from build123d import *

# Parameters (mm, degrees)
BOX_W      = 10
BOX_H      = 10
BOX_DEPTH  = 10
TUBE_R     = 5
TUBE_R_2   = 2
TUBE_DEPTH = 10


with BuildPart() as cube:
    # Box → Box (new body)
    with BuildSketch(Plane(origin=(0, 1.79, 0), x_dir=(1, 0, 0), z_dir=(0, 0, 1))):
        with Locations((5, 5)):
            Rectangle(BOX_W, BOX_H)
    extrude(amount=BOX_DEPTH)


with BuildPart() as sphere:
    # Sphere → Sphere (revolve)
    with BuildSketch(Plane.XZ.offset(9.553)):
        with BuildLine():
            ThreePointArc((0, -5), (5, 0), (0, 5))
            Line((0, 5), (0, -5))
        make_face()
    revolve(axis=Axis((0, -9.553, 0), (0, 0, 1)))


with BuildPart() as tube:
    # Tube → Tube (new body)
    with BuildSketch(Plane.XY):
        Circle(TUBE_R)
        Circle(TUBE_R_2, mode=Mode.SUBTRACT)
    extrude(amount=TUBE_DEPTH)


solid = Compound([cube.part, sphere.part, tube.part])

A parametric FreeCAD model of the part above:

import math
import FreeCAD as App
import Part
import Sketcher

V = App.Vector


def add_polygon(sketch, points):
    """Adds a closed chain of lines whose ends are joined by coincident constraints."""
    first, n = sketch.GeometryCount, len(points)
    for a, b in zip(points, points[1:] + points[:1]):
        sketch.addGeometry(Part.LineSegment(App.Vector(*a, 0), App.Vector(*b, 0)), False)
    for i in range(n):
        sketch.addConstraint(Sketcher.Constraint("Coincident", first + i, 2, first + (i + 1) % n, 1))

doc = App.newDocument("Part")
params = doc.addObject("Spreadsheet::Sheet", "Params")
for row, (alias, value) in enumerate([
    ("sketch1_width", "10 mm"),
    ("pad1_length", "10 mm"),
    ("sketch2_radius", "5 mm"),
    ("revolution_angle", "360 deg"),
    ("sketch3_diameter", "10 mm"),
    ("sketch3_diameter2", "4 mm"),
    ("pad2_length", "10 mm"),
], start=1):
    params.set(f"A{row}", alias)
    params.set(f"B{row}", "=" + value)
    params.setAlias(f"B{row}", alias)

body = doc.addObject("PartDesign::Body", "Body")

sketch1 = doc.addObject("Sketcher::SketchObject", "Sketch")
body.addObject(sketch1)
sketch1.AttachmentSupport = (doc.XY_Plane, [""])
sketch1.MapMode = "FlatFace"
add_polygon(sketch1, [(0, 12), (0, 2), (10, 2), (10, 12)])
sketch1.addConstraint(Sketcher.Constraint("Vertical", 0))
sketch1.addConstraint(Sketcher.Constraint("Horizontal", 1))
sketch1.addConstraint(Sketcher.Constraint("Vertical", 2))
sketch1.addConstraint(Sketcher.Constraint("Horizontal", 3))
sketch1.addConstraint(Sketcher.Constraint("PointOnObject", 0, 2, -2))
sketch1.addConstraint(Sketcher.Constraint("Equal", 3, 0))
sketch1.addConstraint(Sketcher.Constraint("DistanceX", 1, 1, 1, 2, 10.0))
sketch1.addConstraint(Sketcher.Constraint("DistanceY", -1, 1, 0, 2, 1.79))
sketch1.setExpression("Constraints[10]", "Params.sketch1_width")
pad1 = doc.addObject("PartDesign::Pad", "Pad")
body.addObject(pad1)
pad1.Profile = sketch1
pad1.setExpression("Length", "Params.pad1_length")
body2 = doc.addObject("PartDesign::Body", "Body001")

sketch2 = doc.addObject("Sketcher::SketchObject", "Sketch001")
body2.addObject(sketch2)
sketch2.AttachmentSupport = (doc.getObject("XZ_Plane001"), [""])
sketch2.MapMode = "FlatFace"
sketch2.AttachmentOffset = App.Placement(V(0, 0, 9.553), App.Rotation())
sketch2.addGeometry(Part.ArcOfCircle(Part.Circle(V(0, 0, 0), V(0, 0, 1), 5), math.radians(-90), math.radians(90)), False)
sketch2.addGeometry(Part.LineSegment(V(0, 5, 0), V(0, -5, 0)), False)
sketch2.addConstraint(Sketcher.Constraint("Coincident", 0, 1, 1, 2))
sketch2.addConstraint(Sketcher.Constraint("Coincident", 1, 1, 0, 2))
sketch2.addConstraint(Sketcher.Constraint("Vertical", 1))
sketch2.addConstraint(Sketcher.Constraint("Coincident", 0, 3, -1, 1))
sketch2.addConstraint(Sketcher.Constraint("PointOnObject", 0, 1, -2))
sketch2.addConstraint(Sketcher.Constraint("Radius", 0, 5.0))
sketch2.setExpression("Constraints[5]", "Params.sketch2_radius")
revolution = doc.addObject("PartDesign::Revolution", "Revolution")
body2.addObject(revolution)
revolution.Profile = sketch2
revolution.ReferenceAxis = (sketch2, ["V_Axis"])
revolution.setExpression("Angle", "Params.revolution_angle")
body3 = doc.addObject("PartDesign::Body", "Body002")

sketch3 = doc.addObject("Sketcher::SketchObject", "Sketch002")
body3.addObject(sketch3)
sketch3.AttachmentSupport = (doc.getObject("XY_Plane002"), [""])
sketch3.MapMode = "FlatFace"
sketch3.addGeometry(Part.Circle(V(0, 0, 0), V(0, 0, 1), 5), False)
sketch3.addGeometry(Part.Circle(V(0, 0, 0), V(0, 0, 1), 2), False)
sketch3.addConstraint(Sketcher.Constraint("Coincident", 0, 3, -1, 1))
sketch3.addConstraint(Sketcher.Constraint("Coincident", 1, 3, -1, 1))
sketch3.addConstraint(Sketcher.Constraint("Diameter", 0, 10.0))
sketch3.addConstraint(Sketcher.Constraint("Diameter", 1, 4.0))
sketch3.setExpression("Constraints[2]", "Params.sketch3_diameter")
sketch3.setExpression("Constraints[3]", "Params.sketch3_diameter2")
pad2 = doc.addObject("PartDesign::Pad", "Pad001")
body3.addObject(pad2)
pad2.Profile = sketch3
pad2.setExpression("Length", "Params.pad2_length")

doc.recompute()
